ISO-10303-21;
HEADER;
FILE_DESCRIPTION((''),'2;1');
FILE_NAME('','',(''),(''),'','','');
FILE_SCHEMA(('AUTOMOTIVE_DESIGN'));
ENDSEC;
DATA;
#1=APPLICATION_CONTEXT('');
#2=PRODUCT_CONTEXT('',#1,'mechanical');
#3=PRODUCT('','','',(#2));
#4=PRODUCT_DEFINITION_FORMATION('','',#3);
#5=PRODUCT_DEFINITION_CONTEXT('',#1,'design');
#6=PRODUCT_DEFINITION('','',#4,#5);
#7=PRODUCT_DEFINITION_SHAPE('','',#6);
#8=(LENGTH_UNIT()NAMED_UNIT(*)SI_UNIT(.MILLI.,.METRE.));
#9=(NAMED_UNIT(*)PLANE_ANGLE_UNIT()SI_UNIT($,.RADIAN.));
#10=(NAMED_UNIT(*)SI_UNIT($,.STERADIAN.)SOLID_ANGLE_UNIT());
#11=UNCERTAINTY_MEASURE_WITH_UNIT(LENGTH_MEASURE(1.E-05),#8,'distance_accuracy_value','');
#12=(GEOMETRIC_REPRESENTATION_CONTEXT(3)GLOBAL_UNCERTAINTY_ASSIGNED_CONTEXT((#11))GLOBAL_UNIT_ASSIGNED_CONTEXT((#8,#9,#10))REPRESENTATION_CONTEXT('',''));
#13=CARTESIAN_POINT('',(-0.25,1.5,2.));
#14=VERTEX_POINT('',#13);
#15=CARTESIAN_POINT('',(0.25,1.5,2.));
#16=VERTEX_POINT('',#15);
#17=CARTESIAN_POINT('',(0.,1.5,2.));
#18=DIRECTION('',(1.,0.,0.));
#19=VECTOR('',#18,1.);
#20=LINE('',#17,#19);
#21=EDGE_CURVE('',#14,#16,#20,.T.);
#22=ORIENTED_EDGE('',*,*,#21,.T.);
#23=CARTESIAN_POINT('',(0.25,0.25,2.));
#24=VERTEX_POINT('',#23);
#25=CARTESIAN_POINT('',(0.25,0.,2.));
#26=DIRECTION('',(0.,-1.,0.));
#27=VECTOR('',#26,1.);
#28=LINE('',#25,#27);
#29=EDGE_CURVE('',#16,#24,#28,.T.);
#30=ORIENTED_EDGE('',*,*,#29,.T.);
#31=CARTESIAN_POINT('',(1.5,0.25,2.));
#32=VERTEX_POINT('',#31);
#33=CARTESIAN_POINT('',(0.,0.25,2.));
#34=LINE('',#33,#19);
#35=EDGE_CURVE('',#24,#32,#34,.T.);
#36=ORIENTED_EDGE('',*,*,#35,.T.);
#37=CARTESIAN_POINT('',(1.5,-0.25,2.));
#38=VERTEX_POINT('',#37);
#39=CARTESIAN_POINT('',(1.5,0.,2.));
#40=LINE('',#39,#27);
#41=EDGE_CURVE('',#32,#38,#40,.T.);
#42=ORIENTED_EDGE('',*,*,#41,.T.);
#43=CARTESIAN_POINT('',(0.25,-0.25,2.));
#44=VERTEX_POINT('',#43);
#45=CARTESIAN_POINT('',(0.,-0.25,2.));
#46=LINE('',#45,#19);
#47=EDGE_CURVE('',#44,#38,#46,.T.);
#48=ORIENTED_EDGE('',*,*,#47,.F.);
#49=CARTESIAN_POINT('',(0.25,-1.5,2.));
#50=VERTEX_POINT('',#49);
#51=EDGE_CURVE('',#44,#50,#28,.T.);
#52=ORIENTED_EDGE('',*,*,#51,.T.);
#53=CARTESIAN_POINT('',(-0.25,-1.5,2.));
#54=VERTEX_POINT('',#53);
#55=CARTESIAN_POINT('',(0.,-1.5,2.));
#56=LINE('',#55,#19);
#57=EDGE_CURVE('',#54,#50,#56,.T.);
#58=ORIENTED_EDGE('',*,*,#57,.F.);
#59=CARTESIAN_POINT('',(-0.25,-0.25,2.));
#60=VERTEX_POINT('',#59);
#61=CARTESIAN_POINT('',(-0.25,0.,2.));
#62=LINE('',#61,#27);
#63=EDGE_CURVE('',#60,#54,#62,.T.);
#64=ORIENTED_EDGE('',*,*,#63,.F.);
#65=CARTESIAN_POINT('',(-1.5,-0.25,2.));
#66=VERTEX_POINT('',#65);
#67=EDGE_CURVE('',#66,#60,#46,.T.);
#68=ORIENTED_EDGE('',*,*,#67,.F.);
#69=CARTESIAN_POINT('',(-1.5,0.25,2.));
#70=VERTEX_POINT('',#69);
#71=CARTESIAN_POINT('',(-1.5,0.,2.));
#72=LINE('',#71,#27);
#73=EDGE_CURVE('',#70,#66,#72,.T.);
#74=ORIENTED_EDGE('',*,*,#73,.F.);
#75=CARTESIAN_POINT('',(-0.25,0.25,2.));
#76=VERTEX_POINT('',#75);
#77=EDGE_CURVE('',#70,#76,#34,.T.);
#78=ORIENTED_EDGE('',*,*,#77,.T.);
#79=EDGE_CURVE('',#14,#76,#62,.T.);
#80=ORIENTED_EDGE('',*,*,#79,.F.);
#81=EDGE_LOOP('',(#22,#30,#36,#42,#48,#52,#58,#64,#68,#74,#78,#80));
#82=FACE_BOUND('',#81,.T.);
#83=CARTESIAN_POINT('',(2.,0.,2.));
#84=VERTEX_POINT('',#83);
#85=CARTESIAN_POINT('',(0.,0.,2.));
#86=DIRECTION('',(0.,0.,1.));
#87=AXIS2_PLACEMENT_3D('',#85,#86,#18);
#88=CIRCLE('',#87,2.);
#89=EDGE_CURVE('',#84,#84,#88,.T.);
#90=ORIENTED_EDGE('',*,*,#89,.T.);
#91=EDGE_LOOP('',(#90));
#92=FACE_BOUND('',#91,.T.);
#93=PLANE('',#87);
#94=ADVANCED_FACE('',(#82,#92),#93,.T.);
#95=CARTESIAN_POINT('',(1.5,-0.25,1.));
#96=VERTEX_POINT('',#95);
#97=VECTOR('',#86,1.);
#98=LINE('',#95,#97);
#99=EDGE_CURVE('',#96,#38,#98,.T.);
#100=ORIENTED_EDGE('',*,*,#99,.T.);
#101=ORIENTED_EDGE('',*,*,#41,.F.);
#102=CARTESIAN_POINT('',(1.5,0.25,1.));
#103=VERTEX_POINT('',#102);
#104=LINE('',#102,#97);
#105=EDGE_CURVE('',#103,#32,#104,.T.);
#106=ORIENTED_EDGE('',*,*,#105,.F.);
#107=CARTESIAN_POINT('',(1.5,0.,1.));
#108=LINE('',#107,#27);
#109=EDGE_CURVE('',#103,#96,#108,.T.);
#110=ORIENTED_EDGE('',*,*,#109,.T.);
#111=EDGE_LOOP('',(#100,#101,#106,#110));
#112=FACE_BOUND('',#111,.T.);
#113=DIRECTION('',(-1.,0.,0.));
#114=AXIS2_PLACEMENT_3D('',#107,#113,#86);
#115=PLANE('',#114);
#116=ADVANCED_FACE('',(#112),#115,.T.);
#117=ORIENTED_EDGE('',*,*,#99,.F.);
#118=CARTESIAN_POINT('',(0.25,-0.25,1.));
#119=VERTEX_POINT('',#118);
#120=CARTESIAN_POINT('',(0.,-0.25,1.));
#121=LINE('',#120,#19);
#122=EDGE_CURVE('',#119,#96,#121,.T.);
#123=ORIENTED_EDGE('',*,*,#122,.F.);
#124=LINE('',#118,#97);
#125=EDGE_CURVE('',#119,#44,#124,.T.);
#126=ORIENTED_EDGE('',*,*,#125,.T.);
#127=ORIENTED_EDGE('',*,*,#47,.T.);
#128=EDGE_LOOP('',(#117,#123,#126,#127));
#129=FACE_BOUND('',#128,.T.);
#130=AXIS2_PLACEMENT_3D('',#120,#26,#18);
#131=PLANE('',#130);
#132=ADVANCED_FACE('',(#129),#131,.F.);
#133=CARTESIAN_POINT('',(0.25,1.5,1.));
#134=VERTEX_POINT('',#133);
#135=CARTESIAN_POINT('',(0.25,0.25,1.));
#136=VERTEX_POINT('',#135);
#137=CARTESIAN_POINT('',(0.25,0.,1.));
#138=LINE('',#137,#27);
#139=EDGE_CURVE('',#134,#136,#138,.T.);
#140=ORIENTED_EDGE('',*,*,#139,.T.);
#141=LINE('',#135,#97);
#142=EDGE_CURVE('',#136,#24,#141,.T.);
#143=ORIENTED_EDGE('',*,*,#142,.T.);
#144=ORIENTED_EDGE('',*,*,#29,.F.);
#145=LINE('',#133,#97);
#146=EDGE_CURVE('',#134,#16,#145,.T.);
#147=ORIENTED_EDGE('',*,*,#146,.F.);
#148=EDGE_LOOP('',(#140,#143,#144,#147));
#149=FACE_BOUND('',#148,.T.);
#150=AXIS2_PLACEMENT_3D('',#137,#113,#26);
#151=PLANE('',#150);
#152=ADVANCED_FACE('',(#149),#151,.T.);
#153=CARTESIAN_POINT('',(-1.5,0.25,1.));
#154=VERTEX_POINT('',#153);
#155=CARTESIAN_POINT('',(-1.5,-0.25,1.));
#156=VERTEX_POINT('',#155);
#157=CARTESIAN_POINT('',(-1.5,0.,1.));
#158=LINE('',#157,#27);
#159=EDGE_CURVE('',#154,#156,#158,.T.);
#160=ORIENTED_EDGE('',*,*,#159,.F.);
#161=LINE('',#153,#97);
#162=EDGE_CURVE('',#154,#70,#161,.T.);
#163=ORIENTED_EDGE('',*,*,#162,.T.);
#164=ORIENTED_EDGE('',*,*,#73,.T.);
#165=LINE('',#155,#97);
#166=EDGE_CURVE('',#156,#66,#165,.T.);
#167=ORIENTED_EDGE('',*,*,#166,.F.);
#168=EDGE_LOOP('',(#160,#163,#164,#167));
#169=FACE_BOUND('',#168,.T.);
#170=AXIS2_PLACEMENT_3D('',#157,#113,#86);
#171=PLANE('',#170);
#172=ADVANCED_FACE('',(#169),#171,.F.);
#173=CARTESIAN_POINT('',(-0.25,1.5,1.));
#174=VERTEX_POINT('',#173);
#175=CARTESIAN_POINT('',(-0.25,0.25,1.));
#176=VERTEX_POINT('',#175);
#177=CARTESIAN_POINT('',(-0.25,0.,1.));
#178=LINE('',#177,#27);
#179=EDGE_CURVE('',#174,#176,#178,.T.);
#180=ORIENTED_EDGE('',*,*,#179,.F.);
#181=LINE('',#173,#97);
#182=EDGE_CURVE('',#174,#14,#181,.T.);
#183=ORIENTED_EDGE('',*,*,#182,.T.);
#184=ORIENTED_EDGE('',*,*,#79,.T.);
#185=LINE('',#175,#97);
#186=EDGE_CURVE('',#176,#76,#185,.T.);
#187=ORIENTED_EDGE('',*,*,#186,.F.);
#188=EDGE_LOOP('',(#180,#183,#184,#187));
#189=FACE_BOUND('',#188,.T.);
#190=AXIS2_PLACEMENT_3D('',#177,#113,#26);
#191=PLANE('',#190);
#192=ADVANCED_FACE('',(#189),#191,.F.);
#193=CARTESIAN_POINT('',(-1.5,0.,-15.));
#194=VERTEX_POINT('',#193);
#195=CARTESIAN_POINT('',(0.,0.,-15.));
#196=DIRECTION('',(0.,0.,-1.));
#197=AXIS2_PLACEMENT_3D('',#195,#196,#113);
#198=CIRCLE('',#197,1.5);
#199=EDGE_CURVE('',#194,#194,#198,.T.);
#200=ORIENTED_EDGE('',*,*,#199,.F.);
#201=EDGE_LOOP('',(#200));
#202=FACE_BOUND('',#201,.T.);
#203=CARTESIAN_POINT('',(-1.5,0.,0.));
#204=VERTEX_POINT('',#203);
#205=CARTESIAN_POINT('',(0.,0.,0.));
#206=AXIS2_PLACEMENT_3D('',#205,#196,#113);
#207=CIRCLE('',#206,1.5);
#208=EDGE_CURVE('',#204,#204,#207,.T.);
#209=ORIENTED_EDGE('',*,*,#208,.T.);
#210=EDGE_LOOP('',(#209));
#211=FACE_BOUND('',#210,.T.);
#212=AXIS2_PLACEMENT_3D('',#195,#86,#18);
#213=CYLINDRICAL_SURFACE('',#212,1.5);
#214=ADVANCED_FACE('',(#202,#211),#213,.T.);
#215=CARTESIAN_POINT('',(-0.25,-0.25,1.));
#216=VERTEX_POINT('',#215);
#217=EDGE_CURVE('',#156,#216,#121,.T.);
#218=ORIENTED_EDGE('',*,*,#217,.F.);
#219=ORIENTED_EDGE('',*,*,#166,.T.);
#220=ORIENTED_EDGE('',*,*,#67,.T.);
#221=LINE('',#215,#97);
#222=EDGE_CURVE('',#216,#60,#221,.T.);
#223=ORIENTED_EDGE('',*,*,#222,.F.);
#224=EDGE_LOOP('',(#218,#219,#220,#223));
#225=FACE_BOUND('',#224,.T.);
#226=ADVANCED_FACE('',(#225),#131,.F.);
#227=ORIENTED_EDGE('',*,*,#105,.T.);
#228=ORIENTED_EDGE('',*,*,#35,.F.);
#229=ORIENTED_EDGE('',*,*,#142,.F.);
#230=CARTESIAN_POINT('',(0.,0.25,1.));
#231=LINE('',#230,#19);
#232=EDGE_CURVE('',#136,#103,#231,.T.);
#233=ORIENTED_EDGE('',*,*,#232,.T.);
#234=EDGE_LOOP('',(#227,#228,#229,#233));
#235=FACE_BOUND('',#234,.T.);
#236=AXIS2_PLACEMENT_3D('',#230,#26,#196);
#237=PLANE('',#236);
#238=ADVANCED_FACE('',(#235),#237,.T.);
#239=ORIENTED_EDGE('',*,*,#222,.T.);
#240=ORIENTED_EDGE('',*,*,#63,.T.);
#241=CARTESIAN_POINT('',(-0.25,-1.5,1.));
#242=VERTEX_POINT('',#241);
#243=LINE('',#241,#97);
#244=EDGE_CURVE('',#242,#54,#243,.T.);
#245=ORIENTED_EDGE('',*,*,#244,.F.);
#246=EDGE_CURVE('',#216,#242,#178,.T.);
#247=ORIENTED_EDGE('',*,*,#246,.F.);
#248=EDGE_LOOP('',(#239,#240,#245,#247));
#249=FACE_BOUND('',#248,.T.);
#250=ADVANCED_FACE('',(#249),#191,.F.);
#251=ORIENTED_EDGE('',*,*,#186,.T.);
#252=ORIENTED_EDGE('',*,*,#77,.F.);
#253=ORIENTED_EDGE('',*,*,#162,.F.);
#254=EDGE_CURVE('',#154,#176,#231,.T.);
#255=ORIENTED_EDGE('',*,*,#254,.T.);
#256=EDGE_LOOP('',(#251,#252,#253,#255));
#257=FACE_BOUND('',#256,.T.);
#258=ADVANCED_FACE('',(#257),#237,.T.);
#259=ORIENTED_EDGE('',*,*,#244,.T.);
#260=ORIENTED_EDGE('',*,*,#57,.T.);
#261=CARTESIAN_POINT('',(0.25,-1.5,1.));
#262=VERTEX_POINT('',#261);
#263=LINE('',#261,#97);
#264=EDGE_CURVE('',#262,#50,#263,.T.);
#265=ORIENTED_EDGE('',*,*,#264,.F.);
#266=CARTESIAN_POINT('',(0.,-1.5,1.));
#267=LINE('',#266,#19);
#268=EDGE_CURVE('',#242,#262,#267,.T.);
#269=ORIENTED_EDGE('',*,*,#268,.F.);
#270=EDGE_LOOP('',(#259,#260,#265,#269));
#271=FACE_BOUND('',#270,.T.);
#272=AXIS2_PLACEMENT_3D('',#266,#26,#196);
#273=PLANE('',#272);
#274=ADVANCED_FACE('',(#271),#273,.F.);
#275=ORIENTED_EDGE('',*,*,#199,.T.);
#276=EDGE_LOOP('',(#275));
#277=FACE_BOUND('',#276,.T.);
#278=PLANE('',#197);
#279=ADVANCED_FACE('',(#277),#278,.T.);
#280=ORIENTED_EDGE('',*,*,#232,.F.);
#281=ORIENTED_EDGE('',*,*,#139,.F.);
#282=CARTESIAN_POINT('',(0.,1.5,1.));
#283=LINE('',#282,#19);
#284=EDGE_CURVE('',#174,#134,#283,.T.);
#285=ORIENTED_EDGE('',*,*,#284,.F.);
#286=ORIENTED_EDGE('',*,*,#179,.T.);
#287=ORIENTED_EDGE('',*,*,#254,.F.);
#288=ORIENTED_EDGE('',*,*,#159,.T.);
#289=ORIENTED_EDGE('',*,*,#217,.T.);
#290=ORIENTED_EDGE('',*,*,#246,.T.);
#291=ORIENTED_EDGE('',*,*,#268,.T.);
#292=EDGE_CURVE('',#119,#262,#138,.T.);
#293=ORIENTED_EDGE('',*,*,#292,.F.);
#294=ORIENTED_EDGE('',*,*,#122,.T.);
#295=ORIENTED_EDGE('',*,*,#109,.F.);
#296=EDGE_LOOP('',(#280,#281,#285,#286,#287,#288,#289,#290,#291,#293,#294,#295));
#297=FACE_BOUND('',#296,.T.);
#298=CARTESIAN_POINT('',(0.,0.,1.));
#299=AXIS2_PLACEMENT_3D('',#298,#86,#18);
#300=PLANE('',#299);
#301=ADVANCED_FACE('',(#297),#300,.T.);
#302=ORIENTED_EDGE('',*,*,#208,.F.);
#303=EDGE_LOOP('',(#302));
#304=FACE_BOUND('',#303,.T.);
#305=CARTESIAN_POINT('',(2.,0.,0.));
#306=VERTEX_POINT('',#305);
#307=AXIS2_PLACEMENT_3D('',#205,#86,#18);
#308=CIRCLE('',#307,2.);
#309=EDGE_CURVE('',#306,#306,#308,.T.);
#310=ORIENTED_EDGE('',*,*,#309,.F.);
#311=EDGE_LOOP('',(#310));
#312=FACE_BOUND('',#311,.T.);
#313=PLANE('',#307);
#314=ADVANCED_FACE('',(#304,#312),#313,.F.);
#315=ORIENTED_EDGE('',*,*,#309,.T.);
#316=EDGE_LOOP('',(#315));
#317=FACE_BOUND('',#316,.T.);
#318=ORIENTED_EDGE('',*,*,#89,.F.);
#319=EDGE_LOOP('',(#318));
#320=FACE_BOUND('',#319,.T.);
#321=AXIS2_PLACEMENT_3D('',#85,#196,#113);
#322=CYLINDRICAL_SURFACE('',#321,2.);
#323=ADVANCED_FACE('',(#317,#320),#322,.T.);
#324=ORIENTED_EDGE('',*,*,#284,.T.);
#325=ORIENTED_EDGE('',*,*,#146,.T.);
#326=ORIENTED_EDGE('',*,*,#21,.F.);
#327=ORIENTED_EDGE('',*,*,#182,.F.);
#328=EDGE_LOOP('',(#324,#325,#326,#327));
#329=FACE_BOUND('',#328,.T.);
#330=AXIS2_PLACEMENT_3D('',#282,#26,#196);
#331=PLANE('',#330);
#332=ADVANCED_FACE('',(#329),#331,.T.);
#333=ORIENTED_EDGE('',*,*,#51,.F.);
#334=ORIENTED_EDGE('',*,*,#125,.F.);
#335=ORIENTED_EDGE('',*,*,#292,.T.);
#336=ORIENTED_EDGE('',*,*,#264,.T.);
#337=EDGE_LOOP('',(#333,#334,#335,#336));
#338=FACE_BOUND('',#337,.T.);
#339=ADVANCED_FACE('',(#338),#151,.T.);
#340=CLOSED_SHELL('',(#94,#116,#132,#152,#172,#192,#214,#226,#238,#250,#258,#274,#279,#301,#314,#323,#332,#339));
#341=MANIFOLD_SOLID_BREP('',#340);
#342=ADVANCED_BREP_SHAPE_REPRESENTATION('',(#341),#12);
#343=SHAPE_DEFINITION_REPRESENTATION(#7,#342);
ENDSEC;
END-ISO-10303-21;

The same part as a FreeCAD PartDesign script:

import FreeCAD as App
import Part
import Sketcher
Q = App.Units.Quantity


def add_polygon(sketch, points):
    """Adds a closed chain of lines whose ends are joined by coincident constraints."""
    first, n = sketch.GeometryCount, len(points)
    for a, b in zip(points, points[1:] + points[:1]):
        sketch.addGeometry(Part.LineSegment(App.Vector(*a, 0), App.Vector(*b, 0)), False)
    for i in range(n):
        sketch.addConstraint(Sketcher.Constraint("Coincident", first + i, 2, first + (i + 1) % n, 1))

doc = App.newDocument("Part")
params = doc.addObject("Spreadsheet::Sheet", "Params")
for row, (alias, value) in enumerate([
    ("sketch1_diameter", "4 mm"),
    ("pad1_length", "2 mm"),
    ("sketch2_diameter", "3 mm"),
    ("pad2_length", "15 mm"),
    ("sketch3_width", "0.5 mm"),
    ("sketch3_width2", "1.25 mm"),
    ("pocket1_length", "1 mm"),
], start=1):
    params.set(f"A{row}", alias)
    params.set(f"B{row}", "=" + value)
    params.setAlias(f"B{row}", alias)

body = doc.addObject("PartDesign::Body", "Body")

sketch1 = body.newObject("Sketcher::SketchObject", "Sketch")
sketch1.AttachmentSupport = (doc.getObject("XY_Plane"), [""])
sketch1.MapMode = "FlatFace"
sketch1.addGeometry(Part.Circle(App.Vector(0, 0, 0), App.Vector(0, 0, 1), 2), False)
sketch1.addConstraint(Sketcher.Constraint("Coincident", 0, 3, -1, 1))
sketch1.addConstraint(Sketcher.Constraint("Diameter", 0, Q("4 mm")))
sketch1.setExpression("Constraints[1]", "Params.sketch1_diameter")
pad1 = body.newObject("PartDesign::Pad", "Pad")
pad1.Profile = sketch1
pad1.setExpression("Length", "Params.pad1_length")

sketch2 = body.newObject("Sketcher::SketchObject", "Sketch001")
sketch2.AttachmentSupport = (doc.getObject("XY_Plane"), [""])
sketch2.MapMode = "FlatFace"
sketch2.addGeometry(Part.Circle(App.Vector(0, 0, 0), App.Vector(0, 0, 1), 1.5), False)
sketch2.addConstraint(Sketcher.Constraint("Coincident", 0, 3, -1, 1))
sketch2.addConstraint(Sketcher.Constraint("Diameter", 0, Q("3 mm")))
sketch2.setExpression("Constraints[1]", "Params.sketch2_diameter")
pad2 = body.newObject("PartDesign::Pad", "Pad001")
pad2.Profile = sketch2
pad2.setExpression("Length", "Params.pad2_length")
pad2.Reversed = True

sketch3 = body.newObject("Sketcher::SketchObject", "Sketch002")
sketch3.AttachmentSupport = (doc.getObject("XY_Plane"), [""])
sketch3.MapMode = "FlatFace"
sketch3.AttachmentOffset = App.Placement(App.Vector(0, 0, 2), App.Rotation())
add_polygon(sketch3, [(-0.2, 1.5), (-0.2, 0.2), (-1.5, 0.2), (-1.5, -0.2), (-0.2, -0.2), (-0.2, -1.5), (0.2, -1.5), (0.2, -0.2), (1.5, -0.2), (1.5, 0.2), (0.2, 0.2), (0.2, 1.5)])
sketch3.addConstraint(Sketcher.Constraint("Vertical", 0))
sketch3.addConstraint(Sketcher.Constraint("Horizontal", 1))
sketch3.addConstraint(Sketcher.Constraint("Vertical", 2))
sketch3.addConstraint(Sketcher.Constraint("Horizontal", 3))
sketch3.addConstraint(Sketcher.Constraint("Vertical", 4))
sketch3.addConstraint(Sketcher.Constraint("Horizontal", 5))
sketch3.addConstraint(Sketcher.Constraint("Vertical", 6))
sketch3.addConstraint(Sketcher.Constraint("Horizontal", 7))
sketch3.addConstraint(Sketcher.Constraint("Vertical", 8))
sketch3.addConstraint(Sketcher.Constraint("Horizontal", 9))
sketch3.addConstraint(Sketcher.Constraint("Vertical", 10))
sketch3.addConstraint(Sketcher.Constraint("Horizontal", 11))
sketch3.addConstraint(Sketcher.Constraint("Symmetric", 0, 2, 6, 2, -1, 1))
sketch3.addConstraint(Sketcher.Constraint("Symmetric", 2, 2, 8, 2, -1, 1))
sketch3.addConstraint(Sketcher.Constraint("Symmetric", 4, 2, 10, 2, -1, 1))
sketch3.addConstraint(Sketcher.Constraint("Symmetric", 3, 2, 6, 2, -2))
sketch3.addConstraint(Sketcher.Constraint("Equal", 9, 0))
sketch3.addConstraint(Sketcher.Constraint("Equal", 11, 2))
sketch3.addConstraint(Sketcher.Constraint("DistanceX", 5, 1, 5, 2, Q("0.5 mm")))
sketch3.addConstraint(Sketcher.Constraint("DistanceX", 1, 2, 1, 1, Q("1.25 mm")))
sketch3.setExpression("Constraints[30]", "Params.sketch3_width")
sketch3.setExpression("Constraints[31]", "Params.sketch3_width2")
pocket1 = body.newObject("PartDesign::Pocket", "Pocket")
pocket1.Profile = sketch3
pocket1.setExpression("Length", "Params.pocket1_length")

doc.recompute()
